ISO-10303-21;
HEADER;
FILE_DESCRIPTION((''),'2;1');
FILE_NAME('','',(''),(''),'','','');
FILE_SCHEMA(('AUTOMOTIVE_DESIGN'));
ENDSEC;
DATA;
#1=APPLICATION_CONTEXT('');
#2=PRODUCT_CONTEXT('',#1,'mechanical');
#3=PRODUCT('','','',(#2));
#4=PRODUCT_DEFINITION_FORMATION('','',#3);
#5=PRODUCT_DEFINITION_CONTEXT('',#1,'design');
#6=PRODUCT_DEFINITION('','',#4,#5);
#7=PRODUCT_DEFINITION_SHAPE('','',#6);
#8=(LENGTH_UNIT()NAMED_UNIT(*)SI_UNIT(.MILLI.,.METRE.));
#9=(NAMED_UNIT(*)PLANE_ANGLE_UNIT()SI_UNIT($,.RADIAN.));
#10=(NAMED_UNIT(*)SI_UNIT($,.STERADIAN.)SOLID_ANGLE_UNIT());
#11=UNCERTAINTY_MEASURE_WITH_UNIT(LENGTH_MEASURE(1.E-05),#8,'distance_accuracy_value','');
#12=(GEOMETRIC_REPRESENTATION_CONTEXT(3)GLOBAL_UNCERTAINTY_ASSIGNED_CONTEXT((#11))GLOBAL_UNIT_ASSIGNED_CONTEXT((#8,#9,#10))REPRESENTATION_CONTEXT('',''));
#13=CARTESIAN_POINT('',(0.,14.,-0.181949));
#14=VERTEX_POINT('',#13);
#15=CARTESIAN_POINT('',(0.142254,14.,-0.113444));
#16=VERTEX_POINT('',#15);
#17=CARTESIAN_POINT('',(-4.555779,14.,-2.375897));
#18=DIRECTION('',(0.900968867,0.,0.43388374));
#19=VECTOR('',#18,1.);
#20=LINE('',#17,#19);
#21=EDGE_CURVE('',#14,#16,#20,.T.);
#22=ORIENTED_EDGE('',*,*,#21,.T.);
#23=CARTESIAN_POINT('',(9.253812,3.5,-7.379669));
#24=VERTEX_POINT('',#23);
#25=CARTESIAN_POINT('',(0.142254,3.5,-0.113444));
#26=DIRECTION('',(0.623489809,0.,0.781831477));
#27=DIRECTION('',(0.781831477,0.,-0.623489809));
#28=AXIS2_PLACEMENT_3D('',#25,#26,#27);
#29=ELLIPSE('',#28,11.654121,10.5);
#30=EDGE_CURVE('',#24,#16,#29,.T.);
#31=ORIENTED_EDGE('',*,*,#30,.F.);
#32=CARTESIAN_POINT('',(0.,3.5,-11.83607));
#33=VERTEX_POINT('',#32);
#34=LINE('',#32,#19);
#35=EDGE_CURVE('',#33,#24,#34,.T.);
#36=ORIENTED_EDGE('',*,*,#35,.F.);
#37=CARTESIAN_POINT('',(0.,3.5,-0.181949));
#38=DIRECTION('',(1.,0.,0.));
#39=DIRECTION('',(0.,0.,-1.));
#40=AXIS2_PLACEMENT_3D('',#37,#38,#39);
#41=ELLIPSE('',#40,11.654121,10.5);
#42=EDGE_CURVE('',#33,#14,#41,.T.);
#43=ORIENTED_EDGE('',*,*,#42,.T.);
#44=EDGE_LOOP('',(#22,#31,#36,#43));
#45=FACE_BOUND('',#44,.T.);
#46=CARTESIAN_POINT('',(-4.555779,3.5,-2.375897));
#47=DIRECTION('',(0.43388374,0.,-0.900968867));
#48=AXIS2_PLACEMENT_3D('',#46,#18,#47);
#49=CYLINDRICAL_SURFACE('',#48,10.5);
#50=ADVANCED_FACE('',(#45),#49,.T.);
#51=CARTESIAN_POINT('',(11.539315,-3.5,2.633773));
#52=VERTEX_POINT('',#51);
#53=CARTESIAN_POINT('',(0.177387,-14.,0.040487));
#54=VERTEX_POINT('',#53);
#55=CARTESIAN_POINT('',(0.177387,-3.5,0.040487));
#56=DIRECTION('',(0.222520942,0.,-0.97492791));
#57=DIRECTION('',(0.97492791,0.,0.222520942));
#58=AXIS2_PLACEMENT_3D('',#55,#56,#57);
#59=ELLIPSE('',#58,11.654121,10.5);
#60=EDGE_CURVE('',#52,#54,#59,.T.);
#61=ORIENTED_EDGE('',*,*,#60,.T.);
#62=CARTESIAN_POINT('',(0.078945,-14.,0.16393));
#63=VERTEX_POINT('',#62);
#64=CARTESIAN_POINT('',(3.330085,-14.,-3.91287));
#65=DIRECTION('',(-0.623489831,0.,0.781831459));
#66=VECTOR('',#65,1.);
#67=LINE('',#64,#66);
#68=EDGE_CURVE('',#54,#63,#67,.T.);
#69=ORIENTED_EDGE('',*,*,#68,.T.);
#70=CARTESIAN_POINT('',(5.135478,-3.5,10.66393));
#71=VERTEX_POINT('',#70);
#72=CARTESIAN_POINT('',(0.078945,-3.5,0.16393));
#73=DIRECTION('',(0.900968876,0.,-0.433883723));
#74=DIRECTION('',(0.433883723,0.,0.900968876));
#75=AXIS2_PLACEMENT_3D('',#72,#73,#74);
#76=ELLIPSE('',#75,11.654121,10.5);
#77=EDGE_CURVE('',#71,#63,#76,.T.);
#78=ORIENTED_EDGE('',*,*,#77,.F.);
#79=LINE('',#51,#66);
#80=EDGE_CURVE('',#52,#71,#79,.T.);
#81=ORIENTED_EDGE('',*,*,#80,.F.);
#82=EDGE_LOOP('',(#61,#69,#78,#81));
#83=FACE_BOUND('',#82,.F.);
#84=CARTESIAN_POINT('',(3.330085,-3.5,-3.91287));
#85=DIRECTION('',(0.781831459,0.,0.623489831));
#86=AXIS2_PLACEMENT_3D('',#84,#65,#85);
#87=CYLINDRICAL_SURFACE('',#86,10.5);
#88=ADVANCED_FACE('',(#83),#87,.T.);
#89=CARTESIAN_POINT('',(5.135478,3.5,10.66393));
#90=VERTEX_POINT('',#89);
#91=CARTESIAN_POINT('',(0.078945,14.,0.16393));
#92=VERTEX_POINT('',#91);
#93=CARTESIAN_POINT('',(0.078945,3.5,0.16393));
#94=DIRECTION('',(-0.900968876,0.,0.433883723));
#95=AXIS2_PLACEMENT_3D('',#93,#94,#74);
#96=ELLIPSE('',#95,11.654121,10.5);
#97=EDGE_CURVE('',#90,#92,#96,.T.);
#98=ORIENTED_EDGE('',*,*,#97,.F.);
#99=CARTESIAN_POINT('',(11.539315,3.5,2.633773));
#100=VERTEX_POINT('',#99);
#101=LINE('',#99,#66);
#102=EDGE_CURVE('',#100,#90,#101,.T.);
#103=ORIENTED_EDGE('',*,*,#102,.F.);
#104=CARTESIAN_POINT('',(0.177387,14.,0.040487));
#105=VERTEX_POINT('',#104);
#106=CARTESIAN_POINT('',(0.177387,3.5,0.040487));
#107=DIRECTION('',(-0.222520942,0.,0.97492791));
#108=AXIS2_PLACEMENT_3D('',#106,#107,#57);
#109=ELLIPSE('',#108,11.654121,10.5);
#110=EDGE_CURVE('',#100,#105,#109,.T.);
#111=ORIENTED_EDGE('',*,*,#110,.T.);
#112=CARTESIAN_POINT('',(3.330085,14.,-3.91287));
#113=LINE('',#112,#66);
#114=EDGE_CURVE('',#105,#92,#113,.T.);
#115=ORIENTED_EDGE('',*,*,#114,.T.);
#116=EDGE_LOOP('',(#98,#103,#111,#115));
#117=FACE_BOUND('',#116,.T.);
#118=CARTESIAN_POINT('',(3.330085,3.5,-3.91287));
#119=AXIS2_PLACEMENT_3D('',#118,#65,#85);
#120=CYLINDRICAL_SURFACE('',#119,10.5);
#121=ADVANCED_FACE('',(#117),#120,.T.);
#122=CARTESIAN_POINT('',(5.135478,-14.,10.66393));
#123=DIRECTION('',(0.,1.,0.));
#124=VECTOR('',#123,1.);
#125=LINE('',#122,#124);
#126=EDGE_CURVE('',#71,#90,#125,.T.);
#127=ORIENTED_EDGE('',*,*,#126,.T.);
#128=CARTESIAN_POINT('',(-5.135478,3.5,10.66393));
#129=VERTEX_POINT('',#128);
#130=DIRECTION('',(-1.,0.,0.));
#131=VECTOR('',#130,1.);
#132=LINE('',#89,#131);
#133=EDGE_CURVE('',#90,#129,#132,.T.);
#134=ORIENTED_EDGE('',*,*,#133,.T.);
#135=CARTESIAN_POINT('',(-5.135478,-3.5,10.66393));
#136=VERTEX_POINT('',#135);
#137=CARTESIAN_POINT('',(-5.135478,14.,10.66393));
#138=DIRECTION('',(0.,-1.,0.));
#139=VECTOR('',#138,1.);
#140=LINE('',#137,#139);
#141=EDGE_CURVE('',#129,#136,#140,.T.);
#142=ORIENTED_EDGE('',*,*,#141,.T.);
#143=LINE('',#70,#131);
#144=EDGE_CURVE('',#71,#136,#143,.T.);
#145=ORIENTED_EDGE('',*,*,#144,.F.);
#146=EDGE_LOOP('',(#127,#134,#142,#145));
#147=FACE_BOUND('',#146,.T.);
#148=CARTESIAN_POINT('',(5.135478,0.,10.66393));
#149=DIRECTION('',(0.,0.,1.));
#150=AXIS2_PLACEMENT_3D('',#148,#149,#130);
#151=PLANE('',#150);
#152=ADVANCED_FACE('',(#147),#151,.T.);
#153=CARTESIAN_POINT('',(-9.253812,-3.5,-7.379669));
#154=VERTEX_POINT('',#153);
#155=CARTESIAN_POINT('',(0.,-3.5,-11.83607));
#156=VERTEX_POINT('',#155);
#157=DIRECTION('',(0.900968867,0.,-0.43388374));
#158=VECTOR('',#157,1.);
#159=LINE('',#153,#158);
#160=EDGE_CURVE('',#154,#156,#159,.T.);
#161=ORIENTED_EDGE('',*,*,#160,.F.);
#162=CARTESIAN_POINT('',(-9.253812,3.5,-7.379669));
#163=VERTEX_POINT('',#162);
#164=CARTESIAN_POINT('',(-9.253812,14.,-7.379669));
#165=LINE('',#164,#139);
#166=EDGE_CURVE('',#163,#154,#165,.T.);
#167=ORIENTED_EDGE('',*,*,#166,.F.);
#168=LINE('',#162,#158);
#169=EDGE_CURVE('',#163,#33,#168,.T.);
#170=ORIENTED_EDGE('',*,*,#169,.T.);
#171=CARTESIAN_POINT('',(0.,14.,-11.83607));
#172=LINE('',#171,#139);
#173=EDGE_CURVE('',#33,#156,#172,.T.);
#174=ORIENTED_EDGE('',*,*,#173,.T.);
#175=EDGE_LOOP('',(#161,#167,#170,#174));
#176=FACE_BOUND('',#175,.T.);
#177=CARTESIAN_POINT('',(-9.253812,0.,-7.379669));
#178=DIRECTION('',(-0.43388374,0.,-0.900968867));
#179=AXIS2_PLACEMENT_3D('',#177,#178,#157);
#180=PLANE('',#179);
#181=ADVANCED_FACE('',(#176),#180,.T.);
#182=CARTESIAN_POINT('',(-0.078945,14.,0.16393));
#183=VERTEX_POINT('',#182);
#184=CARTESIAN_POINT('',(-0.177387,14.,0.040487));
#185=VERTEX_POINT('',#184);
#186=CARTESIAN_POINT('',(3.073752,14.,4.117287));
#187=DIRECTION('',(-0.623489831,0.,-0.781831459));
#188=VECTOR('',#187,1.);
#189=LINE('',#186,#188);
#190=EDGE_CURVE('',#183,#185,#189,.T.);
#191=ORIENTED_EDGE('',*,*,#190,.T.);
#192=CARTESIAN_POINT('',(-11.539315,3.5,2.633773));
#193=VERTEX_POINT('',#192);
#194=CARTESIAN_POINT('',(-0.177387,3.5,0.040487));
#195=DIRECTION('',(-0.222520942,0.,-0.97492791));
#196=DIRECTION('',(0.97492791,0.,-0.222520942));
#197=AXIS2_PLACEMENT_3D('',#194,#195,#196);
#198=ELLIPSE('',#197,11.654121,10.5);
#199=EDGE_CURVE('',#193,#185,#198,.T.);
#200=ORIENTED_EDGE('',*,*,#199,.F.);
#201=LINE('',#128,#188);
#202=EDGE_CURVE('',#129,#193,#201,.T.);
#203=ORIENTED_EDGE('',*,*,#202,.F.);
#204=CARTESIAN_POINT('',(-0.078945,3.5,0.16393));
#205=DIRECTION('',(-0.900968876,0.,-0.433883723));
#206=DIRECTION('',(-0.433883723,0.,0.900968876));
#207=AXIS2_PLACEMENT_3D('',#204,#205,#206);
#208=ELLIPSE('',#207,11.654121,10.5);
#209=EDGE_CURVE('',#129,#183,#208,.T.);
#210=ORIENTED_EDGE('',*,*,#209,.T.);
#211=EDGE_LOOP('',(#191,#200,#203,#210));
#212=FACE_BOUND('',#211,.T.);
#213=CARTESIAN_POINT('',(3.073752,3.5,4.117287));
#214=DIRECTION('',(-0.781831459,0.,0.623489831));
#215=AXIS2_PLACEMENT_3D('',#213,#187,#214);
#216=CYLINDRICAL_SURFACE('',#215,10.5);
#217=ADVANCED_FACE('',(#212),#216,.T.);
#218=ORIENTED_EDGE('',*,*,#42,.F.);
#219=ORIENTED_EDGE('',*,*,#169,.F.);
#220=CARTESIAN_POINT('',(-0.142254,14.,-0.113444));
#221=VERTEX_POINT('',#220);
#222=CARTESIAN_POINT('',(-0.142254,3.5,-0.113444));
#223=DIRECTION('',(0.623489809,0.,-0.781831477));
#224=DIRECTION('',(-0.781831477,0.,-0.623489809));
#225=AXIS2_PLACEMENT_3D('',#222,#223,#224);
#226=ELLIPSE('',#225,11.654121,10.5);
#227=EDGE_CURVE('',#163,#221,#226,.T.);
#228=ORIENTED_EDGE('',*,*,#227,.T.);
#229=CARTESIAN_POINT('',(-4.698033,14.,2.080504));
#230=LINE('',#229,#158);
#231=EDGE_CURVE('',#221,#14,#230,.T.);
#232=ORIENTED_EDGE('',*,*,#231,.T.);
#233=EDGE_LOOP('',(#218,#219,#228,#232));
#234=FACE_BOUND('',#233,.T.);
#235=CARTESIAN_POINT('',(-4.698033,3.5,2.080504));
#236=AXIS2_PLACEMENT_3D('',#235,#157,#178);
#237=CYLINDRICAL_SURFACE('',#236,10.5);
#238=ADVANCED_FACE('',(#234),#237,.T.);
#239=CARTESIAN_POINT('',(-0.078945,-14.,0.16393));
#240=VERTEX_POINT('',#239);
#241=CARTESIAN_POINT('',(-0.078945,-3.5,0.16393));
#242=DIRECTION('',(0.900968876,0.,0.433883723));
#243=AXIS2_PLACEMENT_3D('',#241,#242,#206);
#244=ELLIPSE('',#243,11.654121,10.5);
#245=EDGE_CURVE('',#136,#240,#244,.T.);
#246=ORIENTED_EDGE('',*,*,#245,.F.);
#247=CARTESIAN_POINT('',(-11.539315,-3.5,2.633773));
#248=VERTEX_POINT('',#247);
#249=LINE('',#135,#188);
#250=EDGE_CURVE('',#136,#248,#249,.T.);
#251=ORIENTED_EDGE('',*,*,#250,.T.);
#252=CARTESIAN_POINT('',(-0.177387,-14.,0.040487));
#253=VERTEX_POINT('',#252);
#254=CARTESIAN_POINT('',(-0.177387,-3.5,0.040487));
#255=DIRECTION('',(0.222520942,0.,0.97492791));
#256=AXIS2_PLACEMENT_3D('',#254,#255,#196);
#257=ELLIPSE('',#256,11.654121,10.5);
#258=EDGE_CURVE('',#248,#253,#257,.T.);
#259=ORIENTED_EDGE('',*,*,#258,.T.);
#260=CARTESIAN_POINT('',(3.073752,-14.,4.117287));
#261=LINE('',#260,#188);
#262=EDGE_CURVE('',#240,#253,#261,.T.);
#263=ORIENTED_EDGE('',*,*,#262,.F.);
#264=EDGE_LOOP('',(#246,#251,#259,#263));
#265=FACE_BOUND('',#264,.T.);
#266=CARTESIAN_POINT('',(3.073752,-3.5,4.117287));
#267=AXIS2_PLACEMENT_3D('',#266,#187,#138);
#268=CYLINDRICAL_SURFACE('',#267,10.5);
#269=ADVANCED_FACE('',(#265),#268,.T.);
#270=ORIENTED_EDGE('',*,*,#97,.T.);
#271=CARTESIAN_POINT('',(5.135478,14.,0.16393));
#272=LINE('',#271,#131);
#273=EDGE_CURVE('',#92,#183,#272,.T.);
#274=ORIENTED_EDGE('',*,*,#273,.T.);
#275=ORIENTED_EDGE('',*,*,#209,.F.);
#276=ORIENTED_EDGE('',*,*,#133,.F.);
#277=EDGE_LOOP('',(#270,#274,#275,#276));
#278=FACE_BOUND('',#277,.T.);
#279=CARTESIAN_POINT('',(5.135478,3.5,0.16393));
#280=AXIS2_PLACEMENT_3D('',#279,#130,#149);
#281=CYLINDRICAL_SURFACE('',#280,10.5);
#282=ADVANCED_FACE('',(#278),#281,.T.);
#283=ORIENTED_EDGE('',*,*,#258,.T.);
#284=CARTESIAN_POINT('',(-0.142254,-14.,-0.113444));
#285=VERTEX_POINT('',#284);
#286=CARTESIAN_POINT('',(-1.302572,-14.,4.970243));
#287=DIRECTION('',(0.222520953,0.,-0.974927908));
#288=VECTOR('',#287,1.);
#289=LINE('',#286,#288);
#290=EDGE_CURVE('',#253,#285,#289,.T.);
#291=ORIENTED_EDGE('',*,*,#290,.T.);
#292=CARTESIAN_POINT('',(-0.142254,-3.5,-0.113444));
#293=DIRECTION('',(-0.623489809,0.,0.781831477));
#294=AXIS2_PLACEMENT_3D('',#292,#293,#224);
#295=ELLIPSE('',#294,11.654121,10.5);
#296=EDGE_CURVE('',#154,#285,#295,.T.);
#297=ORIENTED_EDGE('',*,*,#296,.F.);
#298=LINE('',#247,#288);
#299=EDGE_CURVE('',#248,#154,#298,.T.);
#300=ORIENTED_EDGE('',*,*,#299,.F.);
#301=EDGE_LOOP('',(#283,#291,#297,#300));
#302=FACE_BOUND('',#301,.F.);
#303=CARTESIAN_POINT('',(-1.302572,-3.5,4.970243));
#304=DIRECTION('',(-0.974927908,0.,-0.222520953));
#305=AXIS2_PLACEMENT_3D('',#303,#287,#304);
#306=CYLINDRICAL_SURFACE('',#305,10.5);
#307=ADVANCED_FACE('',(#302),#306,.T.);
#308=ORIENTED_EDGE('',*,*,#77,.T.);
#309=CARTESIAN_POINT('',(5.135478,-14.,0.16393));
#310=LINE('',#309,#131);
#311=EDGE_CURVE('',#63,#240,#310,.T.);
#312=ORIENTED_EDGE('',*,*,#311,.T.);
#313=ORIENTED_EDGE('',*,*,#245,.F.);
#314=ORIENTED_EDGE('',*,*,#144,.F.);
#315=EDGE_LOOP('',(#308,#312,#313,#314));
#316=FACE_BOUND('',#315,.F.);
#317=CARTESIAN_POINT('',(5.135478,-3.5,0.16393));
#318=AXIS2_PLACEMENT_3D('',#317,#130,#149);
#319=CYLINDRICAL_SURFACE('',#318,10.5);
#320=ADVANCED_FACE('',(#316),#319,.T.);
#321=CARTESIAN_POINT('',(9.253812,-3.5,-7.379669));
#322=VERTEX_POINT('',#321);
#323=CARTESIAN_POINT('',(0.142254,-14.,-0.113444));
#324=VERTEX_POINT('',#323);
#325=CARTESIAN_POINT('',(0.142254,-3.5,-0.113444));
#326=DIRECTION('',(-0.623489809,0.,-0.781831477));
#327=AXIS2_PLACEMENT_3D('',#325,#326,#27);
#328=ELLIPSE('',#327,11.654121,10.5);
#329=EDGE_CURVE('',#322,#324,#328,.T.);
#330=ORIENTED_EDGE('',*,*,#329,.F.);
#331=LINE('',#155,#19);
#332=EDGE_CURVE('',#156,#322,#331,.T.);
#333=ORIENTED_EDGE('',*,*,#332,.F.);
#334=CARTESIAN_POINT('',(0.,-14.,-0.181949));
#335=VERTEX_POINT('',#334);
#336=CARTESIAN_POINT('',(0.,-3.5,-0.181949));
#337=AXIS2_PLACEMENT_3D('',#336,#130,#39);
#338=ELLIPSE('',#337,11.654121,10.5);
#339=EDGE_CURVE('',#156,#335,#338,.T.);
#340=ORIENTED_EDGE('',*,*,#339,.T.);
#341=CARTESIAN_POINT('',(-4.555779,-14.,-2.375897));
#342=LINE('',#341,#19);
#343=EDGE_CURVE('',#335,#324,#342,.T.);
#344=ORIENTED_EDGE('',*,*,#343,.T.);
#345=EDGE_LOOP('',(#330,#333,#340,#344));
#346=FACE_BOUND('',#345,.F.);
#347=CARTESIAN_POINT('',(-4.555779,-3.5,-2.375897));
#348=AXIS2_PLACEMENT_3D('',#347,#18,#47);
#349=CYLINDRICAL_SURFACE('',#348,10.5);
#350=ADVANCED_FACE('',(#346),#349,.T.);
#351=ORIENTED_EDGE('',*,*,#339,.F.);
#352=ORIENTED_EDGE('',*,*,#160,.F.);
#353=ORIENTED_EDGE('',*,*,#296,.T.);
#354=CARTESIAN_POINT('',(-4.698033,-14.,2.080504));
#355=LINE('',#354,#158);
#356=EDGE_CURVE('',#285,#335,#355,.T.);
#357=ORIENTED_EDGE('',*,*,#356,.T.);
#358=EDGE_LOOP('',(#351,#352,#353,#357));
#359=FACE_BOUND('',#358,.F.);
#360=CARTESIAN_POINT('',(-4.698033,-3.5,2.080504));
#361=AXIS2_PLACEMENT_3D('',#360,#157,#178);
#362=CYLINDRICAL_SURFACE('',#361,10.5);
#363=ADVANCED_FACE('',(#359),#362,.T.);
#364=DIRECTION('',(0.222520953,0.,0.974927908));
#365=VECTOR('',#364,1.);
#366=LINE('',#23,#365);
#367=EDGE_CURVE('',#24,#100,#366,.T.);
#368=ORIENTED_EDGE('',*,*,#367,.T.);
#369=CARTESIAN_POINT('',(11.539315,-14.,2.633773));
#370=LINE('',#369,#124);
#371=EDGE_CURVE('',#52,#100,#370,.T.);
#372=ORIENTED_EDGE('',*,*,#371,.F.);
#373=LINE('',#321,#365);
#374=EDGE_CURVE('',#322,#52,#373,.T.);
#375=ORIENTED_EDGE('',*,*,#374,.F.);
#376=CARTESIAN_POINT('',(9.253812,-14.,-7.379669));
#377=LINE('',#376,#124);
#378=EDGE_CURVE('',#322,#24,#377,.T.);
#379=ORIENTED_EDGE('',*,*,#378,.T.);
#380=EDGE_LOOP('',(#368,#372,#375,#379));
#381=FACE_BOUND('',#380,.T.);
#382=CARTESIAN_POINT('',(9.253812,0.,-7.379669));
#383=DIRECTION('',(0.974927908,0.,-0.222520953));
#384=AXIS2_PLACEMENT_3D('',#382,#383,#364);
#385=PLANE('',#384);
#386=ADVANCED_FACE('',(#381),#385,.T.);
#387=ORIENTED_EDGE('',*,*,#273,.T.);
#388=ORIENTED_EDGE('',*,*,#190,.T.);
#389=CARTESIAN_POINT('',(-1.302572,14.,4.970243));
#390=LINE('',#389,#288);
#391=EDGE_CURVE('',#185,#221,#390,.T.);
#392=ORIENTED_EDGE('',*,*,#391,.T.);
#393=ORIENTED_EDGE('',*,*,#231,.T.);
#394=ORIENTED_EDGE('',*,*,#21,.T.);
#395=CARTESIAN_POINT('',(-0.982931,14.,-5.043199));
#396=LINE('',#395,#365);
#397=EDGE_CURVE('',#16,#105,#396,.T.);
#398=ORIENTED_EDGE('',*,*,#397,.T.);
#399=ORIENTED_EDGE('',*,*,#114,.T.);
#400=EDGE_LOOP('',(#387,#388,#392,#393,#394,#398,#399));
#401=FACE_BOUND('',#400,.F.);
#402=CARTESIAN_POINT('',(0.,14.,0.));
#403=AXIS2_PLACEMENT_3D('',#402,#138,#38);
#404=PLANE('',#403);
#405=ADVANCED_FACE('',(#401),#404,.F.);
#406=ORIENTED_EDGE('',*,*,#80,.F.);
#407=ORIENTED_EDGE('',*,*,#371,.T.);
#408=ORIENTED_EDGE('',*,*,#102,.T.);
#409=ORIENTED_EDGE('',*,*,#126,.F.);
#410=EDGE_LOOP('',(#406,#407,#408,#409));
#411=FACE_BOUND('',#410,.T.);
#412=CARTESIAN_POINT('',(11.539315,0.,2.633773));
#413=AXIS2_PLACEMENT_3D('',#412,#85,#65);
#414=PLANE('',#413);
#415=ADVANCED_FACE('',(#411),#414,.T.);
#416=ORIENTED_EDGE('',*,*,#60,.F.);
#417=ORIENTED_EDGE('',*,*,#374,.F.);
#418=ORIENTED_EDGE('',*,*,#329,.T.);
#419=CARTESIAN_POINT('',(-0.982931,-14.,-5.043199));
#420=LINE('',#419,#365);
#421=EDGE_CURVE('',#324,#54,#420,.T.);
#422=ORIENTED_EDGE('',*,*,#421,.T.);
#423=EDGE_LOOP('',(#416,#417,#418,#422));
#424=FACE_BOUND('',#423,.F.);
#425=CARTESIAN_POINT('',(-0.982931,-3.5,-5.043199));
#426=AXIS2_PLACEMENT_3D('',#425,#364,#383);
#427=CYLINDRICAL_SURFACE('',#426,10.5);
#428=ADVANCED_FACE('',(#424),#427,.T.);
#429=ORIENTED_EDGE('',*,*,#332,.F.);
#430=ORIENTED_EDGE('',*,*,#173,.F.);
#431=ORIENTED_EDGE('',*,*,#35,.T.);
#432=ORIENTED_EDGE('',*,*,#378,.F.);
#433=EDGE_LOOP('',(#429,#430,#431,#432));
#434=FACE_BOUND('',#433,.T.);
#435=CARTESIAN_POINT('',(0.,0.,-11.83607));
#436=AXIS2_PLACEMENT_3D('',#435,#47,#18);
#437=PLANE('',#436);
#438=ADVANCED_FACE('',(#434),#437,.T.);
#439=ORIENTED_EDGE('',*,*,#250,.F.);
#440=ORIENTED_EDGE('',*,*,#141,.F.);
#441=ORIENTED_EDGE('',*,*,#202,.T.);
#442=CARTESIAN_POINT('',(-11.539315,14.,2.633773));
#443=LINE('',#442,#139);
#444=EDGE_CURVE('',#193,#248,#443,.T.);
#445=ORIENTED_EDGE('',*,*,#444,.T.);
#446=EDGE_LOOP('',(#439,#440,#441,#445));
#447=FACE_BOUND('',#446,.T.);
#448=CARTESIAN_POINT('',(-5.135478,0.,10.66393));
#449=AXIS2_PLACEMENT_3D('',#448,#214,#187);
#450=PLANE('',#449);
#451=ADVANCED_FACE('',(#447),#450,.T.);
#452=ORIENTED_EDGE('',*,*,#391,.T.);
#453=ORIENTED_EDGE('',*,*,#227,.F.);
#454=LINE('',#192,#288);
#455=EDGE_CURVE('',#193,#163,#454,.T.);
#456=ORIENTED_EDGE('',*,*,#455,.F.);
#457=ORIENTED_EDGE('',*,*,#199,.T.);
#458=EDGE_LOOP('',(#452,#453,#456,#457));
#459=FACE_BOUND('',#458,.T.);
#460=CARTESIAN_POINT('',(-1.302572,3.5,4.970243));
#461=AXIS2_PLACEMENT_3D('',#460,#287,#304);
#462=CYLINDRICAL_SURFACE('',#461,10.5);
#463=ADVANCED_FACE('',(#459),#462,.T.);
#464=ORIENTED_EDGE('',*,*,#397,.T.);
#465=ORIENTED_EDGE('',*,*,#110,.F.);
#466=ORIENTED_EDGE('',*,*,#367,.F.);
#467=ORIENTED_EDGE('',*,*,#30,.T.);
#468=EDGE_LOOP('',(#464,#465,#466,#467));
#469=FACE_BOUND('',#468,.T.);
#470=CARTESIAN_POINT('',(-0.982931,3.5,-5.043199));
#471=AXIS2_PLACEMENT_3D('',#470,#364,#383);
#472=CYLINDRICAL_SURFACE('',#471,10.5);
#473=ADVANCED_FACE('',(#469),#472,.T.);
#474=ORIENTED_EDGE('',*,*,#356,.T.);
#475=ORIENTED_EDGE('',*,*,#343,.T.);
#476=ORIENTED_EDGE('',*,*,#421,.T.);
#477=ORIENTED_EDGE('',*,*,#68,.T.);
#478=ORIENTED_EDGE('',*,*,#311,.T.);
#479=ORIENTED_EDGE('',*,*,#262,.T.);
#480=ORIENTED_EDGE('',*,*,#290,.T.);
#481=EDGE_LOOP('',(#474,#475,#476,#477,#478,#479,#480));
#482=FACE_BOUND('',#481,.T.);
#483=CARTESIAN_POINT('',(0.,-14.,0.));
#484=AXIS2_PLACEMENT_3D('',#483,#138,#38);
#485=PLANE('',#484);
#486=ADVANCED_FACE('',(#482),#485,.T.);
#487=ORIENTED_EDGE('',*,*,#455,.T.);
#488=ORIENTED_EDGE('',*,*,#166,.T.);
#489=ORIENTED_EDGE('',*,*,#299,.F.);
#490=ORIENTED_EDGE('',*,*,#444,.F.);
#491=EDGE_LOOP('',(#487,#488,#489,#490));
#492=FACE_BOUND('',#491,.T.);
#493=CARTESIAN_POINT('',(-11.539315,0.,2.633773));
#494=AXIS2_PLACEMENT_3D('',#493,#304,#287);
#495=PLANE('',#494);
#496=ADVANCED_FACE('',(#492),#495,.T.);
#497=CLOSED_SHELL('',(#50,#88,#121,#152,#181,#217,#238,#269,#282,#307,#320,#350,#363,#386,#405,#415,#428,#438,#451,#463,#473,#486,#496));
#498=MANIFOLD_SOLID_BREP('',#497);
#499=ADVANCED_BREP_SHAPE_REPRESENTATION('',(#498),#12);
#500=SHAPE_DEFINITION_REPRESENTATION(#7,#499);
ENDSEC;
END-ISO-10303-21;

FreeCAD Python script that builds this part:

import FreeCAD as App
import Part
import Sketcher

V = App.Vector


def edges_at(feature, points):
    """Names of the edges that pass closest to the given points."""
    edges = feature.Shape.Edges
    near = lambda p: min(range(len(edges)), key=lambda i: edges[i].distToShape(Part.Vertex(*p))[0])
    return sorted({f"Edge{near(p) + 1}" for p in points})


def add_polygon(sketch, points):
    """Adds a closed chain of lines whose ends are joined by coincident constraints."""
    first, n = sketch.GeometryCount, len(points)
    for a, b in zip(points, points[1:] + points[:1]):
        sketch.addGeometry(Part.LineSegment(App.Vector(*a, 0), App.Vector(*b, 0)), False)
    for i in range(n):
        sketch.addConstraint(Sketcher.Constraint("Coincident", first + i, 2, first + (i + 1) % n, 1))

doc = App.newDocument("Part")
body = doc.addObject("PartDesign::Body", "Body")

# Sketch on XZ plane
sketch1 = body.newObject("Sketcher::SketchObject", "Sketch")
sketch1.AttachmentSupport = (doc.getObject("XZ_Plane"), [""])
sketch1.MapMode = "FlatFace"
add_polygon(sketch1, [(5, 11), (-5, 11), (-12, 3), (-9, -7), (0, -12), (9, -7), (12, 3)])  # lines 0-6
sketch1.addConstraint(Sketcher.Constraint("Horizontal", 0))
sketch1.addConstraint(Sketcher.Constraint("Symmetric", 2, 2, 4, 2, -2))
sketch1.addConstraint(Sketcher.Constraint("Symmetric", 1, 2, 5, 2, -2))
sketch1.addConstraint(Sketcher.Constraint("PointOnObject", 3, 2, -2))
sketch1.addConstraint(Sketcher.Constraint("Equal", 1, 2))
sketch1.addConstraint(Sketcher.Constraint("Equal", 2, 3))
sketch1.addConstraint(Sketcher.Constraint("Equal", 5, 6))
sketch1.addConstraint(Sketcher.Constraint("DistanceY", 3, 2, 0, 2, 22.5))
sketch1.addConstraint(Sketcher.Constraint("DistanceY", 2, 2, 0, 2, 18.043599))
sketch1.addConstraint(Sketcher.Constraint("DistanceX", 0, 2, 0, 1, 10.270956))
sketch1.addConstraint(Sketcher.Constraint("DistanceY", -1, 1, 0, 2, 10.66393))
sketch1.addConstraint(Sketcher.Constraint("DistanceX", 0, 2, 4, 2, 14.38929))
pad1 = body.newObject("PartDesign::Pad", "Pad")
pad1.Profile = sketch1
pad1.Type = "TwoLengths"
pad1.Length = 14
pad1.Length2 = 14
doc.recompute()

fillet = body.newObject("PartDesign::Fillet", "Fillet")
fillet.Base = (pad1, edges_at(pad1, [
    (-10.397, -14, -2.373),
    (-4.627, -14, -9.608),
    (4.627, -14, -9.608),
    (10.397, -14, -2.373),
    (8.337, -14, 6.649),
    (0, -14, 10.664),
    (-8.337, -14, 6.649),
    (-10.397, 14, -2.373),
    (-4.627, 14, -9.608),
    (4.627, 14, -9.608),
    (10.397, 14, -2.373),
    (8.337, 14, 6.649),
    (0, 14, 10.664),
    (-8.337, 14, 6.649),
]))
fillet.Radius = 10.5

doc.recompute()
